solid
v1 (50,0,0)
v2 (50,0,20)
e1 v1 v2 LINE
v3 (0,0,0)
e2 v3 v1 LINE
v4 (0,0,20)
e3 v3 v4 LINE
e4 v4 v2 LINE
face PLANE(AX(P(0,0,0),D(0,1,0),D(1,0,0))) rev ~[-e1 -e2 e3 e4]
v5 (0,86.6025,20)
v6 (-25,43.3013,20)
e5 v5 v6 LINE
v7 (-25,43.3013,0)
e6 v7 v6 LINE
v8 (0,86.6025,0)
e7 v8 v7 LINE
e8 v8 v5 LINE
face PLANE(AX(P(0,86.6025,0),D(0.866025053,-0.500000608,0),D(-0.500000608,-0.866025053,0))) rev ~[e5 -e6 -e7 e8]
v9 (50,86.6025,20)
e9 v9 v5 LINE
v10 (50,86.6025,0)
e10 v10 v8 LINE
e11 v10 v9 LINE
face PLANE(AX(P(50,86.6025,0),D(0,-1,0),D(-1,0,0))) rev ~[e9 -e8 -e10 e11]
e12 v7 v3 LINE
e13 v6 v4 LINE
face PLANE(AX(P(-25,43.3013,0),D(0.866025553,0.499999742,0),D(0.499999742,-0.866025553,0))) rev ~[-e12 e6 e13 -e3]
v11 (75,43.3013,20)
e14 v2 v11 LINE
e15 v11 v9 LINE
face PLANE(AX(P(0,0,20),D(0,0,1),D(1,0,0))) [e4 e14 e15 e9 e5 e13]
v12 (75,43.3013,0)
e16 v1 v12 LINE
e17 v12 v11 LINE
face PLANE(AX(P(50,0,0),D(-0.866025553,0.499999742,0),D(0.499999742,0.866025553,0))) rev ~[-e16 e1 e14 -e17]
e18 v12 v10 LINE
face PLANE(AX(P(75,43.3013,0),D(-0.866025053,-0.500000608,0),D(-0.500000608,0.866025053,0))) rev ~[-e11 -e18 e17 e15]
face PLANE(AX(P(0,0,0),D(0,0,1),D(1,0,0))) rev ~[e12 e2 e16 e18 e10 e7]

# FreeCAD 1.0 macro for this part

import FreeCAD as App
import Part
import Sketcher

doc = App.newDocument("Part")
params = doc.addObject("Spreadsheet::Sheet", "Params")
for row, (alias, value) in enumerate([
    ("sketch1_width", "50 mm"),
    ("sketch1_length", "50 mm"),
    ("pad1_length", "20 mm"),
], start=1):
    params.set(f"A{row}", alias)
    params.set(f"B{row}", "=" + value)
    params.setAlias(f"B{row}", alias)

body = doc.addObject("PartDesign::Body", "Body")

# Sketch on XY plane
sketch1 = body.newObject("Sketcher::SketchObject", "Sketch")
sketch1.AttachmentSupport = (doc.getObject("XY_Plane"), [""])
sketch1.MapMode = "FlatFace"
sketch1.addGeometry([
    Part.LineSegment(App.Vector(-25, 43, 0), App.Vector(0, 0, 0)),  # 0
    Part.LineSegment(App.Vector(0, 0, 0), App.Vector(50, 0, 0)),  # 1
    Part.LineSegment(App.Vector(50, 0, 0), App.Vector(75, 43, 0)),  # 2
    Part.LineSegment(App.Vector(75, 43, 0), App.Vector(50, 87, 0)),  # 3
    Part.LineSegment(App.Vector(50, 87, 0), App.Vector(0, 87, 0)),  # 4
    Part.LineSegment(App.Vector(0, 87, 0), App.Vector(-25, 43, 0)),  # 5
], False)
sketch1.addConstraint([
    Sketcher.Constraint("Coincident", 0, 2, 1, 1),
    Sketcher.Constraint("Coincident", 1, 2, 2, 1),
    Sketcher.Constraint("Coincident", 2, 2, 3, 1),
    Sketcher.Constraint("Coincident", 3, 2, 4, 1),
    Sketcher.Constraint("Coincident", 4, 2, 5, 1),
    Sketcher.Constraint("Coincident", 5, 2, 0, 1),
    Sketcher.Constraint("Horizontal", 1),
    Sketcher.Constraint("Horizontal", 4),
    Sketcher.Constraint("Coincident", 0, 2, -1, 1),
    Sketcher.Constraint("PointOnObject", 4, 2, -2),
    Sketcher.Constraint("Parallel", 0, 3),
    Sketcher.Constraint("Parallel", 2, 5),
    Sketcher.Constraint("Horizontal", 2, 2, 5, 2),
    Sketcher.Constraint("Vertical", 1, 2, 3, 2),
    Sketcher.Constraint("DistanceX", 1, 1, 1, 2, 50.0),
    Sketcher.Constraint("Distance", 0, 50.0),
    Sketcher.Constraint("DistanceX", 5, 2, 2, 2, 100.0),
])
sketch1.setExpression("Constraints[14]", "Params.sketch1_width")
sketch1.setExpression("Constraints[15]", "Params.sketch1_length")
pad1 = body.newObject("PartDesign::Pad", "Pad")
pad1.Profile = sketch1
pad1.setExpression("Length", "Params.pad1_length")

doc.recompute()
